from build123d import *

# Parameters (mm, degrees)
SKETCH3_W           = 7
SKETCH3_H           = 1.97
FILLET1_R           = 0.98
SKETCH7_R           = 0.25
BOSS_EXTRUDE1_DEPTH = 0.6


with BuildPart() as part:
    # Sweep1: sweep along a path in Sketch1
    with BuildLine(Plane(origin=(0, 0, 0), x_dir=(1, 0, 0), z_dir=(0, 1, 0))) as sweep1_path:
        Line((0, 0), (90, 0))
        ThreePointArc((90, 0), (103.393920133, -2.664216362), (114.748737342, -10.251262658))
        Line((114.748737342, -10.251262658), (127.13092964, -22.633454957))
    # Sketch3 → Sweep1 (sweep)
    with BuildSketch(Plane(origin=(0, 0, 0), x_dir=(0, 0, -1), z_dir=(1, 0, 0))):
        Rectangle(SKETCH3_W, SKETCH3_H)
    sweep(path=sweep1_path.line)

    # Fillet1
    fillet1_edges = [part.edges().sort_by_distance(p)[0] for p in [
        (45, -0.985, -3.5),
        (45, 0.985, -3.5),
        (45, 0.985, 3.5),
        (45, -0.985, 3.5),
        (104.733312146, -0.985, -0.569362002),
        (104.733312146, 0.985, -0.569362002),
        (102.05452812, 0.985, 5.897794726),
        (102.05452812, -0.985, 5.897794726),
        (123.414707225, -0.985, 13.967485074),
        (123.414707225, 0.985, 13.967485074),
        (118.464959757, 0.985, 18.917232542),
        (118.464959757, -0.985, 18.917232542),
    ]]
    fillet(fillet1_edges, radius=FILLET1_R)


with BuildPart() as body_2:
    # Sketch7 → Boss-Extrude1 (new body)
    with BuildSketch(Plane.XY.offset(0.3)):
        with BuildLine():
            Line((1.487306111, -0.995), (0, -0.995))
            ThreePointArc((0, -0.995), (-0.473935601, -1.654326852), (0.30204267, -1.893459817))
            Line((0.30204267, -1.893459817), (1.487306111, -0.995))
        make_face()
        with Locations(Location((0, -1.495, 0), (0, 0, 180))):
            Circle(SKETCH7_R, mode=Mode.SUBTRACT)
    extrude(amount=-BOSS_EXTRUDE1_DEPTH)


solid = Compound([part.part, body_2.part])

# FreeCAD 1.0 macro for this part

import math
import FreeCAD as App
import Part
import Sketcher
from FreeCAD import Vector
Q = App.Units.Quantity


def edges_at(feature, points):
    """Names of the edges that pass closest to the given points."""
    edges = feature.Shape.Edges
    near = lambda p: min(range(len(edges)), key=lambda i: edges[i].distToShape(Part.Vertex(*p))[0])
    return sorted({f"Edge{near(p) + 1}" for p in points})


def add_polygon(sketch, points):
    """Adds a closed chain of lines whose ends are joined by coincident constraints."""
    first, n = sketch.GeometryCount, len(points)
    for a, b in zip(points, points[1:] + points[:1]):
        sketch.addGeometry(Part.LineSegment(App.Vector(*a, 0), App.Vector(*b, 0)), False)
    for i in range(n):
        sketch.addConstraint(Sketcher.Constraint("Coincident", first + i, 2, first + (i + 1) % n, 1))

doc = App.newDocument("Part")
params = doc.addObject("Spreadsheet::Sheet", "Params")
for row, (alias, value) in enumerate([
    ("sketch1_height", "7 mm"),
    ("sketch1_width", "1.97 mm"),
    ("sketch2_radius", "35 mm"),
    ("sketch2_width", "90 mm"),
    ("fillet_radius", "0.98 mm"),
    ("sketch3_diameter", "0.5 mm"),
    ("sketch3_radius", "0.5 mm"),
    ("pad1_length", "0.6 mm"),
], start=1):
    params.set(f"A{row}", alias)
    params.set(f"B{row}", "=" + value)
    params.setAlias(f"B{row}", alias)

body = doc.addObject("PartDesign::Body", "Body")

sketch1 = doc.addObject("Sketcher::SketchObject", "Sketch")
body.addObject(sketch1)
sketch1.AttachmentSupport = (doc.YZ_Plane, [""])
sketch1.MapMode = "FlatFace"
add_polygon(sketch1, [(1, 3.5), (-1, 3.5), (-1, -3.5), (1, -3.5)])
sketch1.addConstraint(Sketcher.Constraint("Horizontal", 0))
sketch1.addConstraint(Sketcher.Constraint("Vertical", 1))
sketch1.addConstraint(Sketcher.Constraint("Horizontal", 2))
sketch1.addConstraint(Sketcher.Constraint("Vertical", 3))
sketch1.addConstraint(Sketcher.Constraint("Symmetric", 0, 2, 2, 2, -1, 1))
sketch1.addConstraint(Sketcher.Constraint("DistanceY", 1, 2, 1, 1, 7.0))
sketch1.addConstraint(Sketcher.Constraint("DistanceX", 0, 2, 0, 1, 1.97))
sketch1.setExpression("Constraints[9]", "Params.sketch1_height")
sketch1.setExpression("Constraints[10]", "Params.sketch1_width")

sketch2 = doc.addObject("Sketcher::SketchObject", "Sketch001")
body.addObject(sketch2)
sketch2.AttachmentSupport = (doc.XZ_Plane, [""])
sketch2.MapMode = "FlatFace"
sketch2.addGeometry(Part.LineSegment(Vector(0, 0, 0), Vector(90, 0, 0)), False)
sketch2.addGeometry(Part.ArcOfCircle(Part.Circle(Vector(90, 35, 0), Vector(0, 0, 1), 35), math.radians(-90), math.radians(-45)), False)
sketch2.addGeometry(Part.LineSegment(Vector(115, 10, 0), Vector(127, 23, 0)), False)
sketch2.addConstraint(Sketcher.Constraint("Tangent", 0, 2, 1, 1))
sketch2.addConstraint(Sketcher.Constraint("Tangent", 1, 2, 2, 1))
sketch2.addConstraint(Sketcher.Constraint("Horizontal", 0))
sketch2.addConstraint(Sketcher.Constraint("Coincident", 0, 1, -1, 1))
sketch2.addConstraint(Sketcher.Constraint("Radius", 1, 35.0))
sketch2.addConstraint(Sketcher.Constraint("DistanceX", 0, 1, 0, 2, 90.0))
sketch2.addConstraint(Sketcher.Constraint("Angle", 2, Q("45 deg")))
sketch2.addConstraint(Sketcher.Constraint("DistanceX", -1, 1, 2, 2, 127.13093))
sketch2.setExpression("Constraints[4]", "Params.sketch2_radius")
sketch2.setExpression("Constraints[5]", "Params.sketch2_width")
doc.recompute()

additivepipe = doc.addObject("PartDesign::AdditivePipe", "AdditivePipe")
body.addObject(additivepipe)
additivepipe.Profile = sketch1
additivepipe.Spine = (sketch2, ["Edge1", "Edge2", "Edge3"])
doc.recompute()

fillet = doc.addObject("PartDesign::Fillet", "Fillet")
body.addObject(fillet)
fillet.Base = (additivepipe, edges_at(additivepipe, [
    (45, -0.985, -3.5),
    (45, 0.985, -3.5),
    (45, 0.985, 3.5),
    (45, -0.985, 3.5),
    (104.733, -0.985, -0.569),
    (104.733, 0.985, -0.569),
    (102.055, 0.985, 5.898),
    (102.055, -0.985, 5.898),
    (123.415, -0.985, 13.967),
    (123.415, 0.985, 13.967),
    (118.465, 0.985, 18.917),
    (118.465, -0.985, 18.917),
]))
fillet.setExpression("Radius", "Params.fillet_radius")
body2 = doc.addObject("PartDesign::Body", "Body001")

sketch3 = doc.addObject("Sketcher::SketchObject", "Sketch002")
body2.addObject(sketch3)
sketch3.AttachmentSupport = (doc.getObject("XY_Plane001"), [""])
sketch3.MapMode = "FlatFace"
sketch3.AttachmentOffset = App.Placement(Vector(0, 0, 0.3), App.Rotation())
sketch3.addGeometry(Part.LineSegment(Vector(1.49, -0.99, 0), Vector(0, -0.99, 0)), False)
sketch3.addGeometry(Part.ArcOfCircle(Part.Circle(Vector(0, -1.5, 0), Vector(0, 0, 1), 0.5), math.radians(90), math.radians(307)), False)
sketch3.addGeometry(Part.LineSegment(Vector(0.3, -1.89, 0), Vector(1.49, -0.99, 0)), False)
sketch3.addGeometry(Part.Circle(Vector(0, -1.5, 0), Vector(0, 0, 1), 0.25), False)
sketch3.addConstraint(Sketcher.Constraint("Tangent", 0, 2, 1, 1))
sketch3.addConstraint(Sketcher.Constraint("Tangent", 1, 2, 2, 1))
sketch3.addConstraint(Sketcher.Constraint("Coincident", 2, 2, 0, 1))
sketch3.addConstraint(Sketcher.Constraint("Horizontal", 0))
sketch3.addConstraint(Sketcher.Constraint("Coincident", 3, 3, 1, 3))
sketch3.addConstraint(Sketcher.Constraint("PointOnObject", 1, 3, -2))
sketch3.addConstraint(Sketcher.Constraint("Diameter", 3, 0.5))
sketch3.addConstraint(Sketcher.Constraint("Radius", 1, 0.5))
sketch3.addConstraint(Sketcher.Constraint("DistanceY", 1, 3, -1, 1, 1.495))
sketch3.addConstraint(Sketcher.Constraint("DistanceX", 0, 2, 0, 1, 1.487306))
sketch3.setExpression("Constraints[6]", "Params.sketch3_diameter")
sketch3.setExpression("Constraints[7]", "Params.sketch3_radius")
pad1 = doc.addObject("PartDesign::Pad", "Pad")
body2.addObject(pad1)
pad1.Profile = sketch3
pad1.setExpression("Length", "Params.pad1_length")
pad1.Reversed = True

doc.recompute()
